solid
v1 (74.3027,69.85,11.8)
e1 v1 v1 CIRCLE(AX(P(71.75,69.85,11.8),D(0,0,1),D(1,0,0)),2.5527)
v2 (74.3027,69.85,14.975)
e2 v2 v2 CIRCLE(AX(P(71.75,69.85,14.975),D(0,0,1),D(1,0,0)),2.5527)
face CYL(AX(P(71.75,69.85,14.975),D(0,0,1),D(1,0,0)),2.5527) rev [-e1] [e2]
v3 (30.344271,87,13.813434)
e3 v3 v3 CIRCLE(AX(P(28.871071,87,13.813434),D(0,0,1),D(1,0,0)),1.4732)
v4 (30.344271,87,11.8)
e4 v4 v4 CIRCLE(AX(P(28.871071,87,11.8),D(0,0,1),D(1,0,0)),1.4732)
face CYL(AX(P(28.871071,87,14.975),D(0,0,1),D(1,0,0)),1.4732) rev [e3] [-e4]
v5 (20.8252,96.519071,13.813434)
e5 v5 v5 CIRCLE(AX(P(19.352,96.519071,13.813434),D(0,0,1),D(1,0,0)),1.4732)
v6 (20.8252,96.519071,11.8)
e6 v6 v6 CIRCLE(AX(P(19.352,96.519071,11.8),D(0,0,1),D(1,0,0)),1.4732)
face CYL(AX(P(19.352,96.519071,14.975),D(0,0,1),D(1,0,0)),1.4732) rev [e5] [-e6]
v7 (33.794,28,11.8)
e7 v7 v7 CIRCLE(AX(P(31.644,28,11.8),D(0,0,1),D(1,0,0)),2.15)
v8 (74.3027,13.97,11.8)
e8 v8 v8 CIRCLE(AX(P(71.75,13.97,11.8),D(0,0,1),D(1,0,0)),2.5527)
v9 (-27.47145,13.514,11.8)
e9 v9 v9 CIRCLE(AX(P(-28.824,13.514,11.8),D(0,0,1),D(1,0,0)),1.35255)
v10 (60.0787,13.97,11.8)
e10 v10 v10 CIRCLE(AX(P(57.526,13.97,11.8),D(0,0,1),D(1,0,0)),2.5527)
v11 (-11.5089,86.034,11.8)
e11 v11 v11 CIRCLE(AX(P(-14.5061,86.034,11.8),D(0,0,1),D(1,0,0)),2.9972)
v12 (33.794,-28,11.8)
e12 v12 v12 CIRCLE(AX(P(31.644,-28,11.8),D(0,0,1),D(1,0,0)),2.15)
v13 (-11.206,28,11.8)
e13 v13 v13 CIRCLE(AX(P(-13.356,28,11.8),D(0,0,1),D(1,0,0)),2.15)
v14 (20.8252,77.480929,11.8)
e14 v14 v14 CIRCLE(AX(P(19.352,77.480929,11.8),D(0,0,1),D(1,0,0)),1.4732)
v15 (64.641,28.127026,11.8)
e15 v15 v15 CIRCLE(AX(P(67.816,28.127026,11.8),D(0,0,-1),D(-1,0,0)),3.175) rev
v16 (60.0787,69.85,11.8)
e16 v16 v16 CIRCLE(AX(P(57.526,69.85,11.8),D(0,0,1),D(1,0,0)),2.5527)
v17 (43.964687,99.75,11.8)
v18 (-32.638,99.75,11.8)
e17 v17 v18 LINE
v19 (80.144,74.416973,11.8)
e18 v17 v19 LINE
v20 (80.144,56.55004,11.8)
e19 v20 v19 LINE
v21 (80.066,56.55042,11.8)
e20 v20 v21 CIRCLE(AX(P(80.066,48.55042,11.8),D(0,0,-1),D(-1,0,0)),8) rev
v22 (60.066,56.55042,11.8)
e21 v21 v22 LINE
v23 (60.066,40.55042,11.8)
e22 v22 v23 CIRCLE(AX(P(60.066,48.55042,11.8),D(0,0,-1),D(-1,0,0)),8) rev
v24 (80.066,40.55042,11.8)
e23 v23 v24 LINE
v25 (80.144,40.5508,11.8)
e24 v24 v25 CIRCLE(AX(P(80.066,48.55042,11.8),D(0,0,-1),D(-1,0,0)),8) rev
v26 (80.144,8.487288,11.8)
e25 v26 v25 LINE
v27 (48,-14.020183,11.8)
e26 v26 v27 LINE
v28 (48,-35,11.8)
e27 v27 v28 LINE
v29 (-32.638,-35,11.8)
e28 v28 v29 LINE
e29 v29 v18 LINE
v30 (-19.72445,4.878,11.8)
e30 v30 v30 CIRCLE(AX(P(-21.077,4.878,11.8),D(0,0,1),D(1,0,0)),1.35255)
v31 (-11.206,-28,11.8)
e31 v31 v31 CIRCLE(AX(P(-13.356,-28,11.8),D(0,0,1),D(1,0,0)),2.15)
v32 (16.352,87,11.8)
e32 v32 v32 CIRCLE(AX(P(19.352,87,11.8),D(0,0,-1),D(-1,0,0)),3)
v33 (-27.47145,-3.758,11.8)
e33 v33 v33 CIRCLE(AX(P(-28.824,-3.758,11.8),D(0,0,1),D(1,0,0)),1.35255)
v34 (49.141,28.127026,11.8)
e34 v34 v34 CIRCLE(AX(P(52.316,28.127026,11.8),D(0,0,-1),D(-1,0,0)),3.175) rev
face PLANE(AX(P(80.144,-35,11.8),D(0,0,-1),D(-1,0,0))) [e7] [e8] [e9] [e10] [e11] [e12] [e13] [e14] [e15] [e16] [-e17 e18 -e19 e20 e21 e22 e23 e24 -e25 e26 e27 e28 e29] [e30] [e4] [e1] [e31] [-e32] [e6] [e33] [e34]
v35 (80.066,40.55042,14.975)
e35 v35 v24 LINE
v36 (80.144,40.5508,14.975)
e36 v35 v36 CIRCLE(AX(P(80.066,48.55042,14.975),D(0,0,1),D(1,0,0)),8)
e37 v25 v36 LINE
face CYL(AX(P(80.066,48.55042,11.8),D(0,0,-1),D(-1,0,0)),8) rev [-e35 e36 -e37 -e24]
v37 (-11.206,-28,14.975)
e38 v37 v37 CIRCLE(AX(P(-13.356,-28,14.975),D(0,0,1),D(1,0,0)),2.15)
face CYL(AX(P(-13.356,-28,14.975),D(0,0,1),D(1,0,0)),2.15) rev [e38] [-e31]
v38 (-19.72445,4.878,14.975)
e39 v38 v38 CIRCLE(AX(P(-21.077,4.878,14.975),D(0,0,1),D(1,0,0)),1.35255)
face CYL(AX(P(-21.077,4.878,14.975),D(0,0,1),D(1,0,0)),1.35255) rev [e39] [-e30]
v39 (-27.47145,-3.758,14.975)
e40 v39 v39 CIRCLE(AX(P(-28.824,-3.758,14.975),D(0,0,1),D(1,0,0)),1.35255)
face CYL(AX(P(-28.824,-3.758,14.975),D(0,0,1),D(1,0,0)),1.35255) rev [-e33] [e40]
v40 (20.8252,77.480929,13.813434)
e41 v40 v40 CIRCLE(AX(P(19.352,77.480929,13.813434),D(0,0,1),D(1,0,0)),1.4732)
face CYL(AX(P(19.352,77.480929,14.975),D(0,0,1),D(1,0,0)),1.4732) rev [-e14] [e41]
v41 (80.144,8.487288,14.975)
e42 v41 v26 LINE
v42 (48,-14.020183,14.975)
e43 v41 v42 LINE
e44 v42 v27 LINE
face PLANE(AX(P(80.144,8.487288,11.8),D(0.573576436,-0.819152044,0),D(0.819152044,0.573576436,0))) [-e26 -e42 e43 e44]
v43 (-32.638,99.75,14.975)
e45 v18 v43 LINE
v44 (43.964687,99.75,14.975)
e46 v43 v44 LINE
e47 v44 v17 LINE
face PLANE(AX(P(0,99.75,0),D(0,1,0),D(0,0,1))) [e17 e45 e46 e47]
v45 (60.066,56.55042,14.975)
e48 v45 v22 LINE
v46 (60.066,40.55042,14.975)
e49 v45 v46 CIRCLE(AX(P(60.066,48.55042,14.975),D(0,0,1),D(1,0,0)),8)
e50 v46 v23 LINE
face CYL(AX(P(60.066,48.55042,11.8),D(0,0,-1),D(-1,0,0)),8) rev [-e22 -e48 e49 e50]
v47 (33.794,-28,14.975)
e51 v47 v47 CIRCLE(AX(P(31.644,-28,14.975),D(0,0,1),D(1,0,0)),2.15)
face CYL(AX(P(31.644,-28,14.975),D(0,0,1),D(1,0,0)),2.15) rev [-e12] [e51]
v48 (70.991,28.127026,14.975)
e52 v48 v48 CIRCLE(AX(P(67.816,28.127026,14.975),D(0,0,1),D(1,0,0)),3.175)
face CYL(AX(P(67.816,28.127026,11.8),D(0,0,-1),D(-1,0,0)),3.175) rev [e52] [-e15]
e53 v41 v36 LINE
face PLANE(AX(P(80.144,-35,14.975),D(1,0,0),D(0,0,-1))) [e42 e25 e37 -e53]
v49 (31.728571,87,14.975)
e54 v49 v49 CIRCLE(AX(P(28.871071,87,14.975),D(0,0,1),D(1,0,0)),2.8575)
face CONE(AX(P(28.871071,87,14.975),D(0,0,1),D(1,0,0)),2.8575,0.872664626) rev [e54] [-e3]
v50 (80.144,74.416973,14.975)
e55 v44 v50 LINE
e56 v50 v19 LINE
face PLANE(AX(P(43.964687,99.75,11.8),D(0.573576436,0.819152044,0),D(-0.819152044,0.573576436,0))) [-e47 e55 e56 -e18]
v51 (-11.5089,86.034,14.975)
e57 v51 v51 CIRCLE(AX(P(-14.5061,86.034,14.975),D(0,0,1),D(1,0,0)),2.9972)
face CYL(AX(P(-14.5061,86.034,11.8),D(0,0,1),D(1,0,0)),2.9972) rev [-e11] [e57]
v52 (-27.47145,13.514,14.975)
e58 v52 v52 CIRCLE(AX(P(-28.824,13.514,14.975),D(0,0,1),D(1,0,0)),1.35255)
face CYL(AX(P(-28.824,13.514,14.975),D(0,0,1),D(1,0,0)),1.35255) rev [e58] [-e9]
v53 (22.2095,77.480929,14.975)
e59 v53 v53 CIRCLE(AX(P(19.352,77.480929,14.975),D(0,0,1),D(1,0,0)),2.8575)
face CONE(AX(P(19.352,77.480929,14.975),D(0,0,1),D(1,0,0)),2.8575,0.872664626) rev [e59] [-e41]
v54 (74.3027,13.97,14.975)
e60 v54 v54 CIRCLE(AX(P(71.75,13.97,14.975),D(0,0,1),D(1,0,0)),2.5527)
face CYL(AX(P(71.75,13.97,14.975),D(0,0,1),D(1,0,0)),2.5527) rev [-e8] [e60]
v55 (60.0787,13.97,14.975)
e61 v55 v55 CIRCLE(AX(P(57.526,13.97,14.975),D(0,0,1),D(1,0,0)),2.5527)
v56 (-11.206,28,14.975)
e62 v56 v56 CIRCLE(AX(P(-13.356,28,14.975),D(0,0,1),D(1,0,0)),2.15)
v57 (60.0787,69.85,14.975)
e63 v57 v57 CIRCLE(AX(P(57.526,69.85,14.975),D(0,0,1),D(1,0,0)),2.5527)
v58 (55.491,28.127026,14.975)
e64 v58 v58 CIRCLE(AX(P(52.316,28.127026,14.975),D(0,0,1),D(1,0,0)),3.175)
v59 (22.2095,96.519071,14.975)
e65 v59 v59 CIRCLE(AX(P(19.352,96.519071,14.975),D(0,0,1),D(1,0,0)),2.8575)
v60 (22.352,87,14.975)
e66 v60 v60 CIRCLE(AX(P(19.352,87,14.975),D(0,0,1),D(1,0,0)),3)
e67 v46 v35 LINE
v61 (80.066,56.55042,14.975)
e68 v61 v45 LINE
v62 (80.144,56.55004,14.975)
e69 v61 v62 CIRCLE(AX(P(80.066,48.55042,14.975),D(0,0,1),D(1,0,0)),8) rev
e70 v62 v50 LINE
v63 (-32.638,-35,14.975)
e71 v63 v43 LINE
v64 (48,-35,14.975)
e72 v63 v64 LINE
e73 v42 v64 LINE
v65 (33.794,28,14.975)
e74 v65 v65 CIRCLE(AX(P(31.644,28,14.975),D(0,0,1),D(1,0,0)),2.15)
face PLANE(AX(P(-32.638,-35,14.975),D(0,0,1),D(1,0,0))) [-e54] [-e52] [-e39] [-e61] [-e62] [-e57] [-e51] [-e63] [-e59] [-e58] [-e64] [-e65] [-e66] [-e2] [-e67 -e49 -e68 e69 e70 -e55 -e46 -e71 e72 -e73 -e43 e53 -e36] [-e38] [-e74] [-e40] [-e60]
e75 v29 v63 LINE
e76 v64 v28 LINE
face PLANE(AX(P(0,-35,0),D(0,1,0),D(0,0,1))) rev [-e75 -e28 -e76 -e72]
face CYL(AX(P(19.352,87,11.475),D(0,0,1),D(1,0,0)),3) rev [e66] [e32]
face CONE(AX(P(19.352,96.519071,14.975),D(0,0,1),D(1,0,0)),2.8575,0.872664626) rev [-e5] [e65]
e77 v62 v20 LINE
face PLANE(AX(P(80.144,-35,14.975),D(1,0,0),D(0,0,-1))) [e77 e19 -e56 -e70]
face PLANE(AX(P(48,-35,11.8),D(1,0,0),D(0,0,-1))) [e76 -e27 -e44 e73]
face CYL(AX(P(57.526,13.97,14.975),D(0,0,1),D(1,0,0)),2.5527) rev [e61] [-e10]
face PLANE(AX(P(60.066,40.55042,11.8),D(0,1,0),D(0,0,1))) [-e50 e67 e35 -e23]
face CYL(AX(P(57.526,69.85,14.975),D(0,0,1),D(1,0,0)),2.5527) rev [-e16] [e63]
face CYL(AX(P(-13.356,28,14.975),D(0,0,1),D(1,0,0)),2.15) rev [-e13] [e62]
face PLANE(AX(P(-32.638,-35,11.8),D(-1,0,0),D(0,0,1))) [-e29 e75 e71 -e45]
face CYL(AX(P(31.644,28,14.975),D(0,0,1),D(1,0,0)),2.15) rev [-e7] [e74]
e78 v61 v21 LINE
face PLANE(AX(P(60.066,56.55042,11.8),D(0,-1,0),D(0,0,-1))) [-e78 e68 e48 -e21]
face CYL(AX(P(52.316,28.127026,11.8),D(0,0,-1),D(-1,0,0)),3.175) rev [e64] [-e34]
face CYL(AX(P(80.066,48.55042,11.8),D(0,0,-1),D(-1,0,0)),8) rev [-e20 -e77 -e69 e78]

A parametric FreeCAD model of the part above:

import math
import FreeCAD as App
import Part
import Sketcher

V = App.Vector
Q = App.Units.Quantity


def add_polygon(sketch, points):
    """Adds a closed chain of lines whose ends are joined by coincident constraints."""
    first, n = sketch.GeometryCount, len(points)
    for a, b in zip(points, points[1:] + points[:1]):
        sketch.addGeometry(Part.LineSegment(App.Vector(*a, 0), App.Vector(*b, 0)), False)
    for i in range(n):
        sketch.addConstraint(Sketcher.Constraint("Coincident", first + i, 2, first + (i + 1) % n, 1))

doc = App.newDocument("Part")
body = doc.addObject("PartDesign::Body", "Body")

# Sketch on XZ plane
sketch1 = doc.addObject("Sketcher::SketchObject", "Sketch")
body.addObject(sketch1)
sketch1.AttachmentSupport = (doc.XZ_Plane, [""])
sketch1.MapMode = "FlatFace"
add_polygon(sketch1, [(-32.6, 11.8), (-32.6, 15), (80.1, 15), (80.1, 11.8)])  # lines 0-3
sketch1.addConstraint([
    Sketcher.Constraint("Vertical", 0),
    Sketcher.Constraint("Horizontal", 1),
    Sketcher.Constraint("Vertical", 2),
    Sketcher.Constraint("Horizontal", 3),
    Sketcher.Constraint("DistanceY", -1, 1, 2, 2, 11.8),
    Sketcher.Constraint("DistanceX", 1, 1, 1, 2, 112.782),
    Sketcher.Constraint("DistanceY", 0, 1, 0, 2, 3.175),
    Sketcher.Constraint("DistanceX", 0, 2, -1, 1, 32.638),
])
pad1 = doc.addObject("PartDesign::Pad", "Pad")
body.addObject(pad1)
pad1.Profile = sketch1
pad1.Type = "TwoLengths"
pad1.Length = 99.75
pad1.Length2 = 35
pad1.Reversed = True

# Sketch on XY plane
sketch2 = doc.addObject("Sketcher::SketchObject", "Sketch001")
body.addObject(sketch2)
sketch2.AttachmentSupport = (doc.XY_Plane, [""])
sketch2.MapMode = "FlatFace"
sketch2.addGeometry(Part.Circle(V(52.3, 28.1, 0), V(0, 0, 1), 3.2), False)  # 0
sketch2.addGeometry(Part.Circle(V(67.8, 28.1, 0), V(0, 0, 1), 3.2), False)  # 1
add_polygon(sketch2, [(48, -35), (80.1, -35), (80.1, 8.5), (48, -14)])  # lines 2-5
sketch2.addGeometry(Part.LineSegment(V(80.1, 56.6, 0), V(60.1, 56.6, 0)), False)  # 6
sketch2.addGeometry(Part.ArcOfCircle(Part.Circle(V(60.1, 48.6, 0), V(0, 0, 1), 8), math.radians(90), math.radians(270)), False)  # 7
sketch2.addGeometry(Part.LineSegment(V(60.1, 40.6, 0), V(80.1, 40.6, 0)), False)  # 8
sketch2.addGeometry(Part.ArcOfCircle(Part.Circle(V(80.1, 48.6, 0), V(0, 0, 1), 8), math.radians(-90), math.radians(90)), False)  # 9
add_polygon(sketch2, [(44, 99.8), (80.1, 74.4), (80.1, 99.8)])  # lines 10-12
sketch2.addConstraint([
    Sketcher.Constraint("Tangent", 6, 2, 7, 1),
    Sketcher.Constraint("Tangent", 7, 2, 8, 1),
    Sketcher.Constraint("Tangent", 8, 2, 9, 1),
    Sketcher.Constraint("Tangent", 9, 2, 6, 1),
    Sketcher.Constraint("Horizontal", 2),
    Sketcher.Constraint("Vertical", 3),
    Sketcher.Constraint("Vertical", 5),
    Sketcher.Constraint("Horizontal", 6),
    Sketcher.Constraint("Horizontal", 8),
    Sketcher.Constraint("Vertical", 11),
    Sketcher.Constraint("Horizontal", 12),
    Sketcher.Constraint("Equal", 0, 1),
    Sketcher.Constraint("Horizontal", 0, 3, 1, 3),
    Sketcher.Constraint("Vertical", 3, 2, 10, 2),
    Sketcher.Constraint("Radius", 7, 8.0),
    Sketcher.Constraint("Diameter", 0, 6.35),
    Sketcher.Constraint("DistanceX", 6, 2, 6, 1, 20.0),
    Sketcher.Constraint("Angle", 4, Q("-145 deg")),
    Sketcher.Constraint("Angle", 10, Q("-35 deg")),
    Sketcher.Constraint("DistanceY", 2, 2, -1, 1, 35.0),
    Sketcher.Constraint("DistanceX", -1, 1, 4, 2, 48.0),
    Sketcher.Constraint("DistanceX", 0, 3, 1, 3, 15.5),
    Sketcher.Constraint("DistanceX", 2, 1, 2, 2, 32.144),
    Sketcher.Constraint("DistanceY", -1, 1, 11, 2, 99.75),
    Sketcher.Constraint("DistanceX", 0, 3, 7, 3, 7.75),
    Sketcher.Constraint("DistanceX", -1, 1, 0, 3, 52.316),
    Sketcher.Constraint("DistanceX", 12, 2, 12, 1, 36.179313),
    Sketcher.Constraint("DistanceY", 3, 1, 3, 2, 43.487288),
    Sketcher.Constraint("DistanceY", -1, 1, 7, 3, 48.55042),
    Sketcher.Constraint("DistanceY", 3, 2, 1, 3, 19.639738),
])
pocket1 = doc.addObject("PartDesign::Pocket", "Pocket")
body.addObject(pocket1)
pocket1.Profile = sketch2
pocket1.Type = "ThroughAll"
pocket1.Midplane = True

# Sketch on XY plane
sketch3 = doc.addObject("Sketcher::SketchObject", "Sketch002")
body.addObject(sketch3)
sketch3.AttachmentSupport = (doc.XY_Plane, [""])
sketch3.MapMode = "FlatFace"
sketch3.AttachmentOffset = App.Placement(V(0, 0, 14.975), App.Rotation())
sketch3.addGeometry([
    Part.Circle(V(-13.4, 28, 0), V(0, 0, 1), 2.1),
    Part.Circle(V(31.6, 28, 0), V(0, 0, 1), 2.1),
    Part.Circle(V(31.6, -28, 0), V(0, 0, 1), 2.1),
    Part.Circle(V(-13.4, -28, 0), V(0, 0, 1), 2.1),
], False)
sketch3.addConstraint([
    Sketcher.Constraint("Equal", 0, 1),
    Sketcher.Constraint("Equal", 1, 2),
    Sketcher.Constraint("Equal", 2, 3),
    Sketcher.Constraint("Symmetric", 1, 3, 2, 3, -1),
    Sketcher.Constraint("Symmetric", 0, 3, 3, 3, -1),
    Sketcher.Constraint("Horizontal", 0, 3, 1, 3),
    Sketcher.Constraint("Diameter", 0, 4.3),
    Sketcher.Constraint("DistanceY", -1, 1, 0, 3, 28.0),
    Sketcher.Constraint("DistanceX", 0, 3, 1, 3, 45.0),
    Sketcher.Constraint("DistanceX", 0, 3, -1, 1, 13.356),
])
doc.recompute()
hole = doc.addObject("PartDesign::Hole", "Hole")
body.addObject(hole)
hole.Profile = sketch3
hole.ThreadType = "None"
hole.Diameter = 4.3
hole.DepthType = "ThroughAll"

# Sketch on XY plane
sketch4 = doc.addObject("Sketcher::SketchObject", "Sketch003")
body.addObject(sketch4)
sketch4.AttachmentSupport = (doc.XY_Plane, [""])
sketch4.MapMode = "FlatFace"
sketch4.AttachmentOffset = App.Placement(V(0, 0, 14.975), App.Rotation())
sketch4.addGeometry([
    Part.Circle(V(19.4, 96.5, 0), V(0, 0, 1), 1.5),
    Part.Circle(V(28.9, 87, 0), V(0, 0, 1), 1.5),
    Part.Circle(V(19.4, 77.5, 0), V(0, 0, 1), 1.5),
], False)
sketch4.addConstraint([
    Sketcher.Constraint("Equal", 0, 1),
    Sketcher.Constraint("Equal", 1, 2),
    Sketcher.Constraint("Vertical", 0, 3, 2, 3),
    Sketcher.Constraint("DistanceY", -1, 1, 1, 3, 87.0),
    Sketcher.Constraint("Diameter", 0, 2.9464),
    Sketcher.Constraint("DistanceX", -1, 1, 0, 3, 19.352),
    Sketcher.Constraint("DistanceY", -1, 1, 0, 3, 96.519071),
    Sketcher.Constraint("DistanceX", -1, 1, 1, 3, 28.871071),
    Sketcher.Constraint("DistanceY", -1, 1, 2, 3, 77.480929),
])
doc.recompute()
hole2 = doc.addObject("PartDesign::Hole", "Hole001")
body.addObject(hole2)
hole2.Profile = sketch4
hole2.ThreadType = "None"
hole2.Diameter = 2.9464
hole2.DepthType = "ThroughAll"
hole2.HoleCutType = "Countersink"
hole2.HoleCutDiameter = 5.715
hole2.HoleCutCountersinkAngle = 100

# Sketch on XY plane
sketch5 = doc.addObject("Sketcher::SketchObject", "Sketch004")
body.addObject(sketch5)
sketch5.AttachmentSupport = (doc.XY_Plane, [""])
sketch5.MapMode = "FlatFace"
sketch5.AttachmentOffset = App.Placement(V(0, 0, 14.975), App.Rotation())
sketch5.addGeometry(Part.Circle(V(19.4, 87, 0), V(0, 0, 1), 3), False)
sketch5.addConstraint([
    Sketcher.Constraint("Diameter", 0, 6.0),
    Sketcher.Constraint("DistanceY", -1, 1, 0, 3, 87.0),
    Sketcher.Constraint("DistanceX", -1, 1, 0, 3, 19.352),
])
pocket2 = doc.addObject("PartDesign::Pocket", "Pocket001")
body.addObject(pocket2)
pocket2.Profile = sketch5
pocket2.Length = 3.5

# Sketch on XY plane
sketch6 = doc.addObject("Sketcher::SketchObject", "Sketch005")
body.addObject(sketch6)
sketch6.AttachmentSupport = (doc.XY_Plane, [""])
sketch6.MapMode = "FlatFace"
sketch6.AttachmentOffset = App.Placement(V(0, 0, 14.975), App.Rotation())
sketch6.addGeometry([
    Part.Circle(V(-28.8, -3.8, 0), V(0, 0, 1), 1.4),
    Part.Circle(V(-21.1, 4.9, 0), V(0, 0, 1), 1.4),
    Part.Circle(V(-28.8, 13.5, 0), V(0, 0, 1), 1.4),
], False)
sketch6.addConstraint([
    Sketcher.Constraint("Equal", 0, 1),
    Sketcher.Constraint("Equal", 1, 2),
    Sketcher.Constraint("Vertical", 0, 3, 2, 3),
    Sketcher.Constraint("Diameter", 0, 2.7051),
    Sketcher.Constraint("DistanceX", 0, 3, -1, 1, 28.824),
    Sketcher.Constraint("DistanceY", 0, 3, -1, 1, 3.758),
    Sketcher.Constraint("DistanceX", 1, 3, -1, 1, 21.077),
    Sketcher.Constraint("DistanceY", -1, 1, 1, 3, 4.878),
    Sketcher.Constraint("DistanceY", -1, 1, 2, 3, 13.514),
])
doc.recompute()
hole3 = doc.addObject("PartDesign::Hole", "Hole002")
body.addObject(hole3)
hole3.Profile = sketch6
hole3.ThreadType = "None"
hole3.Diameter = 2.7051
hole3.DepthType = "ThroughAll"

# Sketch on XY plane
sketch7 = doc.addObject("Sketcher::SketchObject", "Sketch006")
body.addObject(sketch7)
sketch7.AttachmentSupport = (doc.XY_Plane, [""])
sketch7.MapMode = "FlatFace"
sketch7.AttachmentOffset = App.Placement(V(0, 0, 14.975), App.Rotation())
sketch7.addGeometry([
    Part.Circle(V(57.5, 14, 0), V(0, 0, 1), 2.6),
    Part.Circle(V(71.8, 14, 0), V(0, 0, 1), 2.6),
    Part.Circle(V(71.8, 69.8, 0), V(0, 0, 1), 2.6),
    Part.Circle(V(57.5, 69.8, 0), V(0, 0, 1), 2.6),
], False)
sketch7.addConstraint([
    Sketcher.Constraint("Equal", 0, 1),
    Sketcher.Constraint("Equal", 1, 2),
    Sketcher.Constraint("Equal", 2, 3),
    Sketcher.Constraint("Horizontal", 0, 3, 1, 3),
    Sketcher.Constraint("Horizontal", 2, 3, 3, 3),
    Sketcher.Constraint("Vertical", 1, 3, 2, 3),
    Sketcher.Constraint("Vertical", 0, 3, 3, 3),
    Sketcher.Constraint("Diameter", 0, 5.1054),
    Sketcher.Constraint("DistanceY", -1, 1, 0, 3, 13.97),
    Sketcher.Constraint("DistanceX", -1, 1, 1, 3, 71.75),
    Sketcher.Constraint("DistanceY", -1, 1, 2, 3, 69.85),
    Sketcher.Constraint("DistanceX", -1, 1, 0, 3, 57.526),
])
doc.recompute()
hole4 = doc.addObject("PartDesign::Hole", "Hole003")
body.addObject(hole4)
hole4.Profile = sketch7
hole4.ThreadType = "None"
hole4.Diameter = 5.1054
hole4.DepthType = "ThroughAll"

# Sketch on XY plane
sketch8 = doc.addObject("Sketcher::SketchObject", "Sketch007")
body.addObject(sketch8)
sketch8.AttachmentSupport = (doc.XY_Plane, [""])
sketch8.MapMode = "FlatFace"
sketch8.AttachmentOffset = App.Placement(V(0, 0, 14.975), App.Rotation())
sketch8.addGeometry(Part.Circle(V(-14.5, 86, 0), V(0, 0, 1), 3), False)
sketch8.addConstraint([
    Sketcher.Constraint("Diameter", 0, 5.9944),
    Sketcher.Constraint("DistanceY", -1, 1, 0, 3, 86.034),
    Sketcher.Constraint("DistanceX", 0, 3, -1, 1, 14.5061),
])
pocket3 = doc.addObject("PartDesign::Pocket", "Pocket002")
body.addObject(pocket3)
pocket3.Profile = sketch8
pocket3.Type = "ThroughAll"

doc.recompute()
